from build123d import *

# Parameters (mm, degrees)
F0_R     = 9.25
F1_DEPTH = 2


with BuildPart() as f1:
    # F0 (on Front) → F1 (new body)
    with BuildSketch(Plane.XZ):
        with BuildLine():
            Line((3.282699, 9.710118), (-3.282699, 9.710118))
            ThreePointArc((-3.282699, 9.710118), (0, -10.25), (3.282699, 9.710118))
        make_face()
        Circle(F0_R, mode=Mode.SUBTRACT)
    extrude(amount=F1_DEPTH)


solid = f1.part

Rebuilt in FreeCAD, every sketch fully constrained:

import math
import FreeCAD as App
import Part
import Sketcher
from FreeCAD import Vector

doc = App.newDocument("Part")
params = doc.addObject("Spreadsheet::Sheet", "Params")
for row, (alias, value) in enumerate([
    ("sketch1_diameter", "18.5 mm"),
    ("sketch1_radius", "10.25 mm"),
    ("pad1_length", "2 mm"),
], start=1):
    params.set(f"A{row}", alias)
    params.set(f"B{row}", "=" + value)
    params.setAlias(f"B{row}", alias)

body = doc.addObject("PartDesign::Body", "Body")

# Sketch on XZ plane
sketch1 = body.newObject("Sketcher::SketchObject", "Sketch")
sketch1.AttachmentSupport = (doc.getObject("XZ_Plane"), [""])
sketch1.MapMode = "FlatFace"
sketch1.addGeometry([
    Part.LineSegment(Vector(3, 10, 0), Vector(-3, 10, 0)),
    Part.ArcOfCircle(Part.Circle(Vector(0, 0, 0), Vector(0, 0, 1), 10), math.radians(109), math.radians(431)),
    Part.Circle(Vector(0, 0, 0), Vector(0, 0, 1), 9),
], False)
sketch1.addConstraint([
    Sketcher.Constraint("Coincident", 0, 1, 1, 2),
    Sketcher.Constraint("Coincident", 1, 1, 0, 2),
    Sketcher.Constraint("Horizontal", 0),
    Sketcher.Constraint("Coincident", 1, 3, -1, 1),
    Sketcher.Constraint("Coincident", 2, 3, -1, 1),
    Sketcher.Constraint("Diameter", 2, 18.5),
    Sketcher.Constraint("Radius", 1, 10.25),
    Sketcher.Constraint("DistanceX", -1, 1, 0, 1, 3.282699),
])
sketch1.setExpression("Constraints[5]", "Params.sketch1_diameter")
sketch1.setExpression("Constraints[6]", "Params.sketch1_radius")
pad1 = body.newObject("PartDesign::Pad", "Pad")
pad1.Profile = sketch1
pad1.setExpression("Length", "Params.pad1_length")

doc.recompute()
